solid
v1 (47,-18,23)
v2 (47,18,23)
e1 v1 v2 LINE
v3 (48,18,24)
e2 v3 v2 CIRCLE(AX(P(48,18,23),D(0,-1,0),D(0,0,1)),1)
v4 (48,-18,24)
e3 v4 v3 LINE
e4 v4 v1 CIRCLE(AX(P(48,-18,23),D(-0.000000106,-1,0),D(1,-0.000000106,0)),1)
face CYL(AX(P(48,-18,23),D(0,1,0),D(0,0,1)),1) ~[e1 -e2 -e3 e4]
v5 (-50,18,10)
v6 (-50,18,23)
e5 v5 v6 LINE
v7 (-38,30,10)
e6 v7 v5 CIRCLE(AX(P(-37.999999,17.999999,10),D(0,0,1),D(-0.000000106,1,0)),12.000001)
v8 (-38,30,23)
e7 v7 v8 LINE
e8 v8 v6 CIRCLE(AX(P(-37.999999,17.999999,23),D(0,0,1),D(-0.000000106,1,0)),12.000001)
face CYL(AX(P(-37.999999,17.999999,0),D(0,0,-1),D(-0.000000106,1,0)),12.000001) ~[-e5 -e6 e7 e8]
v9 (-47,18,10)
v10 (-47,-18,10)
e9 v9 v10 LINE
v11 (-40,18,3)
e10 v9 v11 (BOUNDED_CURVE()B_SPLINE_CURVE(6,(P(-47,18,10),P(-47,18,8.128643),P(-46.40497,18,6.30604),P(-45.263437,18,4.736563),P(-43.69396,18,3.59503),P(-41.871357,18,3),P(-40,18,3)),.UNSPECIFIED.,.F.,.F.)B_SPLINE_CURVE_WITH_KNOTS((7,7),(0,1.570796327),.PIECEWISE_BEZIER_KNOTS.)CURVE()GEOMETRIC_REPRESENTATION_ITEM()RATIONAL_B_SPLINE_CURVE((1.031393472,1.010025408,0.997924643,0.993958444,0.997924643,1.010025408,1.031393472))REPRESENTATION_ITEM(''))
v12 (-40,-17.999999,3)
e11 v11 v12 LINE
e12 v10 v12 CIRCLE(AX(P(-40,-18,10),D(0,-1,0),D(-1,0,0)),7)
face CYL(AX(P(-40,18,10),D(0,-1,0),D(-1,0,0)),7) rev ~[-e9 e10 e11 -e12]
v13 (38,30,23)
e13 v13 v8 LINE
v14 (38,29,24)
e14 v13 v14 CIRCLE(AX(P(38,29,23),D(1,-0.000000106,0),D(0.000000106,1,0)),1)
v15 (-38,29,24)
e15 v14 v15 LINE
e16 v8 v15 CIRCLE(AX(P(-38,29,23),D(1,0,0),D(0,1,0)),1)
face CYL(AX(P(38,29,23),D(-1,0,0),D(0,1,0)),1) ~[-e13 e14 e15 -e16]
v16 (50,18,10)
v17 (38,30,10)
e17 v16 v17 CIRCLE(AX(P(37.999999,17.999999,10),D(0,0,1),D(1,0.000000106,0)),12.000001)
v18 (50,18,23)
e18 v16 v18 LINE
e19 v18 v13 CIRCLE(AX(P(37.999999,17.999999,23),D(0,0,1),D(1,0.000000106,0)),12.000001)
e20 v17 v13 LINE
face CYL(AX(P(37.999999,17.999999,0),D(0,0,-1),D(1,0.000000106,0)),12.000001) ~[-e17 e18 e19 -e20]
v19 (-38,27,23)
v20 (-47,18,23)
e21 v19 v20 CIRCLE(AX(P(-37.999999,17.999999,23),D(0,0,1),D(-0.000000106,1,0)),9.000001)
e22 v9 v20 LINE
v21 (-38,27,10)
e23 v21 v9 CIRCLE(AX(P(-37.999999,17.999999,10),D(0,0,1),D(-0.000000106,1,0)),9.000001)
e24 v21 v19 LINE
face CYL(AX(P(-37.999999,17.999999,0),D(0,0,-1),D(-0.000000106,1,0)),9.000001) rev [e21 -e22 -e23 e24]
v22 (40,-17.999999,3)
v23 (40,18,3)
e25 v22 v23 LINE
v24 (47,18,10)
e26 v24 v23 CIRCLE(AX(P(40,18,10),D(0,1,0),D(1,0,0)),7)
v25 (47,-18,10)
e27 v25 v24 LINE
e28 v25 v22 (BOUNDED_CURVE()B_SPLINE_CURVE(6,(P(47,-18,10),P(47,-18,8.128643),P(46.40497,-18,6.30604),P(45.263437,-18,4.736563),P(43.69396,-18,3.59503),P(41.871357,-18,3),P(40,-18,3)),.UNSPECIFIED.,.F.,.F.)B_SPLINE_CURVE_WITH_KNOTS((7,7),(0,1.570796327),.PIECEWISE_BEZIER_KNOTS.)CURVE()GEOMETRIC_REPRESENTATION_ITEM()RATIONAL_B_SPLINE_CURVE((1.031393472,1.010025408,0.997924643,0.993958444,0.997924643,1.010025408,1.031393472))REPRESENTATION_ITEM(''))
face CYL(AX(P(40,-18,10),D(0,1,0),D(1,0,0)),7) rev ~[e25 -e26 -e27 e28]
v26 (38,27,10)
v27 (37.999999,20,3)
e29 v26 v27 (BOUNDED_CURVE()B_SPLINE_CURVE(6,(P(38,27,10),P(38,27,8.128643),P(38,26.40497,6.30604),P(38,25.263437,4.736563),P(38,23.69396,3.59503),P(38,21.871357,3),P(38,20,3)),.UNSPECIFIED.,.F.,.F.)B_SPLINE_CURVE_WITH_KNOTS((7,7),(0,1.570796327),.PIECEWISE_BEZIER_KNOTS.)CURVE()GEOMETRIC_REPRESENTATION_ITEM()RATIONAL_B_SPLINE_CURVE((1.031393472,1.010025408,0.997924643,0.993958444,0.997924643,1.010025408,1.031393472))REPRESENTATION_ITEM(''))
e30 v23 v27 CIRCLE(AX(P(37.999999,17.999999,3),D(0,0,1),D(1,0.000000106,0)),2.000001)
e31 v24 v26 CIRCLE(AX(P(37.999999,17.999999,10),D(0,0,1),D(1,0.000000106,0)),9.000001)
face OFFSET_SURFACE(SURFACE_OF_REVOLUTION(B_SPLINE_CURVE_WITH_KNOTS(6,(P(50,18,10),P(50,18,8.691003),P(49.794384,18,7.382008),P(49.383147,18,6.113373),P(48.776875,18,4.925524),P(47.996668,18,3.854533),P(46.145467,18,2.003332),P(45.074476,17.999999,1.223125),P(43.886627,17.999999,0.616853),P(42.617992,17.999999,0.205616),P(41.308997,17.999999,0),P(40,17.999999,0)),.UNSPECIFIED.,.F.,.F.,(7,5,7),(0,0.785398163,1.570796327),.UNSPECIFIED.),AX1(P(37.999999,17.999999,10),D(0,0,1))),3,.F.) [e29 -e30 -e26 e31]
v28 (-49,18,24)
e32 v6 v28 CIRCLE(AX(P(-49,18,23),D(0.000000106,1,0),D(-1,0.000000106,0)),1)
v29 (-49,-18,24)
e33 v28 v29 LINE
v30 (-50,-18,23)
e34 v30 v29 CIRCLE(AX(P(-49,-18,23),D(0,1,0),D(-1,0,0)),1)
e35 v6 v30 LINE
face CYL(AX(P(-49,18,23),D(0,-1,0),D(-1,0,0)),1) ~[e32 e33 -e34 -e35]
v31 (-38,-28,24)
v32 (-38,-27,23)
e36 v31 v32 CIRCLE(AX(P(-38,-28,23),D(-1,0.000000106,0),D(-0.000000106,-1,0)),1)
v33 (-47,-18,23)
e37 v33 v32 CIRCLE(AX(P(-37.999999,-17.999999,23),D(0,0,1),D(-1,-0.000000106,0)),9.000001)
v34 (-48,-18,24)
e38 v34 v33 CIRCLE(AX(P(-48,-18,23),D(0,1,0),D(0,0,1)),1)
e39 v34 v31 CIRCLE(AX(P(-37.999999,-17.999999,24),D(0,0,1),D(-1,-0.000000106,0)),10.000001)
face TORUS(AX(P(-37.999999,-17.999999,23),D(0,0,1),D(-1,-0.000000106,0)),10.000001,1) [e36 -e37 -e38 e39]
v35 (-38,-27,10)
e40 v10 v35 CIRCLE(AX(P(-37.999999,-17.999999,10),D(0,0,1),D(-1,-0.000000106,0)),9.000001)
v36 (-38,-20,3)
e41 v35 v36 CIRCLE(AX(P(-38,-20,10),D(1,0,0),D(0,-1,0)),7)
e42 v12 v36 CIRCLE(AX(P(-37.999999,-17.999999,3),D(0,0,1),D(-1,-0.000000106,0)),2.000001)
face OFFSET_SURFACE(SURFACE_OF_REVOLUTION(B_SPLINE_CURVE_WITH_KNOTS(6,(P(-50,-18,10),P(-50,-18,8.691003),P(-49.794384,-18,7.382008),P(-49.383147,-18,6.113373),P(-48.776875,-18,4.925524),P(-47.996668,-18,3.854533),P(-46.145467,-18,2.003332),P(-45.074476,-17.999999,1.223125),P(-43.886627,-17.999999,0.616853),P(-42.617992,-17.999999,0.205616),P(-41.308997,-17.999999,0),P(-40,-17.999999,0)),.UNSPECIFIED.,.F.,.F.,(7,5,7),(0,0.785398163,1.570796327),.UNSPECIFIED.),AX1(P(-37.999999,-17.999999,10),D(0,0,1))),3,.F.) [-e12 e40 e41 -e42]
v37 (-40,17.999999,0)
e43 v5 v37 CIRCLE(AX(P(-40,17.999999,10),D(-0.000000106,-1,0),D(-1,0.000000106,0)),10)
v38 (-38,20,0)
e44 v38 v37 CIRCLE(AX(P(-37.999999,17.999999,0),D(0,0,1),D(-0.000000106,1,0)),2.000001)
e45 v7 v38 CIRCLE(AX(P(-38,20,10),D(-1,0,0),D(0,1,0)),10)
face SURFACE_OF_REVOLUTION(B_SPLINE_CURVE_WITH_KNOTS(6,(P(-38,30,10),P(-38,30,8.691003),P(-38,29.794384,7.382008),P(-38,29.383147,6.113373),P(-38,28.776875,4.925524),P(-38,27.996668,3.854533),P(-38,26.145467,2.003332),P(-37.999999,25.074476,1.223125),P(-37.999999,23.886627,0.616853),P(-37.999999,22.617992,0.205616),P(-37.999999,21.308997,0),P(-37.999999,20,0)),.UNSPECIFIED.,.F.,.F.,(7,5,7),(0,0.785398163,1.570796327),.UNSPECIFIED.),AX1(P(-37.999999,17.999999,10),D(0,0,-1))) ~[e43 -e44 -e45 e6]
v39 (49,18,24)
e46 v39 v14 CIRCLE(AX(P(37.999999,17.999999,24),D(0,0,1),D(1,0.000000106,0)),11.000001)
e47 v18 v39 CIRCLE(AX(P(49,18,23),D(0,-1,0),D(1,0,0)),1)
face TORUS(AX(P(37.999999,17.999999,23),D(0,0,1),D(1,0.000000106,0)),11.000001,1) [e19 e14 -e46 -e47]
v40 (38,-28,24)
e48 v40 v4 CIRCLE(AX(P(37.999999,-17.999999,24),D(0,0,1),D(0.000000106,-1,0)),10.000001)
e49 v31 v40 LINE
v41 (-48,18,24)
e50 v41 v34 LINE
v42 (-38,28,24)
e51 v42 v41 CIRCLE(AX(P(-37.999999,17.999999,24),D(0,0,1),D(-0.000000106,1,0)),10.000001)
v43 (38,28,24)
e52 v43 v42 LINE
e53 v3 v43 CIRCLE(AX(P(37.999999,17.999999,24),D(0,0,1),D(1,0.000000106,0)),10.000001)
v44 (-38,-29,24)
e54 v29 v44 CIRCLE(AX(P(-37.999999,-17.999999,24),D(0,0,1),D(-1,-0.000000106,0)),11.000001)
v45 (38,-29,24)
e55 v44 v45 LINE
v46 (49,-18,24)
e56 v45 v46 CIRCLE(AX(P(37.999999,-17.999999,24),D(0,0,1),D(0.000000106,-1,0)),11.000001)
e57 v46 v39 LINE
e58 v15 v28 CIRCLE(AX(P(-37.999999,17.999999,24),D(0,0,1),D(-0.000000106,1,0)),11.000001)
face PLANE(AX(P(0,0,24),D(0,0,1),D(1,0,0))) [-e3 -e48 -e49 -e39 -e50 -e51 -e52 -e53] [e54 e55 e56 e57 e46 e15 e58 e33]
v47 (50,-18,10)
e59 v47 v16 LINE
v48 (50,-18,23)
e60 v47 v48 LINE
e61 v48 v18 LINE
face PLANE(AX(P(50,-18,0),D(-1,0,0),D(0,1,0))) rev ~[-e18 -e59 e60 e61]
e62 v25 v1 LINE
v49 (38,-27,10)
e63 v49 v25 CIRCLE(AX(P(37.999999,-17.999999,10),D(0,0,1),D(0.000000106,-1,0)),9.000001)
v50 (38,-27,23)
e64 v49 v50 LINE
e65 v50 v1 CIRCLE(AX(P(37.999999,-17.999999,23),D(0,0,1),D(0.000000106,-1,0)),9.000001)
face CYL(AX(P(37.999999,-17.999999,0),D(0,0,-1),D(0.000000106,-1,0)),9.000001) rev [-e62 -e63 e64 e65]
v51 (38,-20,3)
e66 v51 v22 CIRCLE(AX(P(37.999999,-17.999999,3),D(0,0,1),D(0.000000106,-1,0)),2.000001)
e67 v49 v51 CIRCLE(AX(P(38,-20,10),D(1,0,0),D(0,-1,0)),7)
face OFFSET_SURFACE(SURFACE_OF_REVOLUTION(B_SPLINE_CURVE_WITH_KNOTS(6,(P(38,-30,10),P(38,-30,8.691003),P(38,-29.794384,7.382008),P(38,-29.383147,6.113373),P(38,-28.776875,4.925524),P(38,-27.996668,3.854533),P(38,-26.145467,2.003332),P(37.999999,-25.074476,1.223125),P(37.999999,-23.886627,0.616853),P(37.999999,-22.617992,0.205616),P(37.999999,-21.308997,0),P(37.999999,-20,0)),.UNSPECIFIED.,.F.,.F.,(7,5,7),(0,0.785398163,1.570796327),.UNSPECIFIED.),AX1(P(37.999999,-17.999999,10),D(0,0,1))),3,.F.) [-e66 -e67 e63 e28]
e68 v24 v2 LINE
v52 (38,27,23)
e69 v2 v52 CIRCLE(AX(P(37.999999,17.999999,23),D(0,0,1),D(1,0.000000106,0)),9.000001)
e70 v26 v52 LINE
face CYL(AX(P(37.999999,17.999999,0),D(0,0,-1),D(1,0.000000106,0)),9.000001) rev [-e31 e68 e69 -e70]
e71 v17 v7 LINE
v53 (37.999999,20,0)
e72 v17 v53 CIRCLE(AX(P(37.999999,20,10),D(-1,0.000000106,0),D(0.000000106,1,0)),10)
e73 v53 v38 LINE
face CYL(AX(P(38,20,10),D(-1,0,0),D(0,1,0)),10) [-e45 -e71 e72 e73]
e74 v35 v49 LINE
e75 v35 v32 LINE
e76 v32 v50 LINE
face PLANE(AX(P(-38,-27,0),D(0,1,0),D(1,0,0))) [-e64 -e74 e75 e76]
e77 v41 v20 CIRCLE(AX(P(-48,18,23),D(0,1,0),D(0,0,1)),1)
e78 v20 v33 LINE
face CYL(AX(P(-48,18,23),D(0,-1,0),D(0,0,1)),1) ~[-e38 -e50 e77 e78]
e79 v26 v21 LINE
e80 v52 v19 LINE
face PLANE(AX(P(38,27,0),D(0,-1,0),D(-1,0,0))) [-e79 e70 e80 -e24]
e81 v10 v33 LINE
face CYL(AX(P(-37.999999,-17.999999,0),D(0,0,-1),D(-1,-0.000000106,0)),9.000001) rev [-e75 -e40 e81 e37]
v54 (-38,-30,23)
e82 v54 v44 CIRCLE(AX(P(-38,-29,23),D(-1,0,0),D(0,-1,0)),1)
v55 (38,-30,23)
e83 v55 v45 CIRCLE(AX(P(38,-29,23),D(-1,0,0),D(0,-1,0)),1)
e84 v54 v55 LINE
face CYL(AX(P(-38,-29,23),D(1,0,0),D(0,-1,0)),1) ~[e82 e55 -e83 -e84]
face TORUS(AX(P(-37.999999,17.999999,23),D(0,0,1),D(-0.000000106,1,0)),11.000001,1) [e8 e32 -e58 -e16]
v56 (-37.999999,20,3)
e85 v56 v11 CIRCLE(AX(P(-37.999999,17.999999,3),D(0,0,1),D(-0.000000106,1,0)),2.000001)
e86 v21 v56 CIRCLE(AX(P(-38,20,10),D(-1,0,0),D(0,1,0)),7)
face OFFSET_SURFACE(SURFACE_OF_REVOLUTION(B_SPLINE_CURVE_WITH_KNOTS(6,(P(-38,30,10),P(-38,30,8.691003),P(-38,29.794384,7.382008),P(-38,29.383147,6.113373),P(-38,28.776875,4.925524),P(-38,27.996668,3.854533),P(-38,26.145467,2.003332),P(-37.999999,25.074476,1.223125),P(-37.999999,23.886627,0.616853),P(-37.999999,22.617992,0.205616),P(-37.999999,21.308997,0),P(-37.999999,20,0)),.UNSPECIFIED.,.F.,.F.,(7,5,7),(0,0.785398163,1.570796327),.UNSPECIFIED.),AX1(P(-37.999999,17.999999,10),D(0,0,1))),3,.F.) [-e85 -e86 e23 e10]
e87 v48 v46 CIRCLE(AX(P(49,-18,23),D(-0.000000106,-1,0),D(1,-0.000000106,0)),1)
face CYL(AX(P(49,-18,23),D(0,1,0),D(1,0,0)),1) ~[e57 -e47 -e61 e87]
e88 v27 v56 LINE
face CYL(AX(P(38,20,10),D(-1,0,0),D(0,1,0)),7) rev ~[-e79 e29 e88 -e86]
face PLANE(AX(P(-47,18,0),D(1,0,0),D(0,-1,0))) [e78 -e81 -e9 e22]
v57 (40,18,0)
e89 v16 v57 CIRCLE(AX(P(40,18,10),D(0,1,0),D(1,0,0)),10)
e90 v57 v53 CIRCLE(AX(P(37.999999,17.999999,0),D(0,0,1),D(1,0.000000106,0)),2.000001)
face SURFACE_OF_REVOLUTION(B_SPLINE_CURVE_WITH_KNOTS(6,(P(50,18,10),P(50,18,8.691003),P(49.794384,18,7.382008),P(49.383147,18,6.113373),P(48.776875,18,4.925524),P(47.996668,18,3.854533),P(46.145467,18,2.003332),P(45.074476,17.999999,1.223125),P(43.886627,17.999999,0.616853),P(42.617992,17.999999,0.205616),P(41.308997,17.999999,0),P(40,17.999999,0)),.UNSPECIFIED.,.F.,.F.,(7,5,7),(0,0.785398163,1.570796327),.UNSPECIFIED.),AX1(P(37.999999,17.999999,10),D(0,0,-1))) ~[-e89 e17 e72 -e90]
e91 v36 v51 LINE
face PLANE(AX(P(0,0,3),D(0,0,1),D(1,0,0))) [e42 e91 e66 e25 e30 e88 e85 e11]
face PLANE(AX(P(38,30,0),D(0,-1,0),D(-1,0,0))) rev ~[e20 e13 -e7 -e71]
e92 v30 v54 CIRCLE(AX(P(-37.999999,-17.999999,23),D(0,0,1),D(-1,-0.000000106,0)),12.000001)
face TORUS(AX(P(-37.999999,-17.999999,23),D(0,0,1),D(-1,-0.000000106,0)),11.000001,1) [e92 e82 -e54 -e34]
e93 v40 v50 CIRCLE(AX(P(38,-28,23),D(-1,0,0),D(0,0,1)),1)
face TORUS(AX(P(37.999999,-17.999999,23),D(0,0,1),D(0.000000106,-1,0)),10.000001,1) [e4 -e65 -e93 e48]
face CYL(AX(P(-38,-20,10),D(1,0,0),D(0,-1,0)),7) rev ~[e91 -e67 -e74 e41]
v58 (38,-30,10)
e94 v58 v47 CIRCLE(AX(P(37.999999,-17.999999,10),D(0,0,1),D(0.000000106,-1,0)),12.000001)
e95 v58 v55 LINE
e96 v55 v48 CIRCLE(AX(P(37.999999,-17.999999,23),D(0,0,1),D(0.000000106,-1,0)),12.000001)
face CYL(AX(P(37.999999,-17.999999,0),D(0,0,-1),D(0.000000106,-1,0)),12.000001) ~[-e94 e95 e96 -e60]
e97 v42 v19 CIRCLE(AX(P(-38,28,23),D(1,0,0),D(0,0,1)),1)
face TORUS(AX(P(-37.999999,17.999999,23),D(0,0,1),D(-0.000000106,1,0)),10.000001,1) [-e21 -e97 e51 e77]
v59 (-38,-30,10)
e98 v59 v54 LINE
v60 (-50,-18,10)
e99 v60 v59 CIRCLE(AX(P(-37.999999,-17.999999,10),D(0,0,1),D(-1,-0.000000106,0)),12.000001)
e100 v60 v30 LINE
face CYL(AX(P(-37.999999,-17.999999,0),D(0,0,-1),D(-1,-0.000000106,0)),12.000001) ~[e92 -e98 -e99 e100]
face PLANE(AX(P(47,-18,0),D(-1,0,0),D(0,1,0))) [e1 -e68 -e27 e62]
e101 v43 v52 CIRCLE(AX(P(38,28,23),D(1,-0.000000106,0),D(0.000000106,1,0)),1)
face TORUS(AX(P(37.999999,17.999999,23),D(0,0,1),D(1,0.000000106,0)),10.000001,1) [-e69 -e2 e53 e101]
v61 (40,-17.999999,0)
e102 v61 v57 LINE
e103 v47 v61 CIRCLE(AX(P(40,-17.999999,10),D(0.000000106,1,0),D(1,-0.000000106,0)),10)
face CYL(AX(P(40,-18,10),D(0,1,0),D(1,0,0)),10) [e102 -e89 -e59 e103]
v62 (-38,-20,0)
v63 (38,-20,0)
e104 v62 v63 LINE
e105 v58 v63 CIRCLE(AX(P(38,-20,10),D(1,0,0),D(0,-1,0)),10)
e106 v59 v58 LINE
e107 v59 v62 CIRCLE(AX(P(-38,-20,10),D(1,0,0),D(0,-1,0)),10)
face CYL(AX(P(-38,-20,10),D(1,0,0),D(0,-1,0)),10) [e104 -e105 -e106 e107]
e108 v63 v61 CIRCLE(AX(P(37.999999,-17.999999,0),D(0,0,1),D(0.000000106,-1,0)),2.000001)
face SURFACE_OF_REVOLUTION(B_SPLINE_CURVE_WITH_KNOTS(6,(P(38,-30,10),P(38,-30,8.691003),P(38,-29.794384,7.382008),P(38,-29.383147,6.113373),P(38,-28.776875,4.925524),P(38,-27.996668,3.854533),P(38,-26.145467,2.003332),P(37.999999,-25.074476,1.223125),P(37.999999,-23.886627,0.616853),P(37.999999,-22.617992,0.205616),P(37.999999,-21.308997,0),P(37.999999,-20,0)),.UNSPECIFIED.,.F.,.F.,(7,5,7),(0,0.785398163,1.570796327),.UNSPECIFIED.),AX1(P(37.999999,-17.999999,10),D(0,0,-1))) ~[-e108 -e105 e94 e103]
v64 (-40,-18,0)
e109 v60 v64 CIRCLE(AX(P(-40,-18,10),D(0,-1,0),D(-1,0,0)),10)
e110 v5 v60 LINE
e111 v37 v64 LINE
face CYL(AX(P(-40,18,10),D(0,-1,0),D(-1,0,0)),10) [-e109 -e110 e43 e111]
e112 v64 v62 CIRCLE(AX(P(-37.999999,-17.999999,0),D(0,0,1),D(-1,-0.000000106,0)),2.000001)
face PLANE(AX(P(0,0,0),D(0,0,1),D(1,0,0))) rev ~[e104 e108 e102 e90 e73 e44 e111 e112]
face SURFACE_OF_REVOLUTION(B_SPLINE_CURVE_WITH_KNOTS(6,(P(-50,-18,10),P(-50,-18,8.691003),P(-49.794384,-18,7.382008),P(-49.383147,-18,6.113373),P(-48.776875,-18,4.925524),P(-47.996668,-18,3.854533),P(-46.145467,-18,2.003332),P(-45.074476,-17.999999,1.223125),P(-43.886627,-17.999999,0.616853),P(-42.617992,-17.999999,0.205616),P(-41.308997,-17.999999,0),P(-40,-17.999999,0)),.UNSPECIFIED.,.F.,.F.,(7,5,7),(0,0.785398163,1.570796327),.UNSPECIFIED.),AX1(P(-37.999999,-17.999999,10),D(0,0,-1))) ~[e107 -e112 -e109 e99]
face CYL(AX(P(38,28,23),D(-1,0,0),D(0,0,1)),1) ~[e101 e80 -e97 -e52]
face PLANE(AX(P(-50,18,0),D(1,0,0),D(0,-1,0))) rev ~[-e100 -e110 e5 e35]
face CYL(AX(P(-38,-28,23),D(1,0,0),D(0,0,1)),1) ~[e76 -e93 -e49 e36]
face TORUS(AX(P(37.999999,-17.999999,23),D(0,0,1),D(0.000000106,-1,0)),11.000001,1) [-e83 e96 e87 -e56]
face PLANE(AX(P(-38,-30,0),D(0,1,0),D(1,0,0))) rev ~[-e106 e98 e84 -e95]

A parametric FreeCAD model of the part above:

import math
import FreeCAD as App
import Part
import Sketcher
from FreeCAD import Vector


def edges_at(feature, points):
    """Names of the edges that pass closest to the given points."""
    edges = feature.Shape.Edges
    near = lambda p: min(range(len(edges)), key=lambda i: edges[i].distToShape(Part.Vertex(*p))[0])
    return sorted({f"Edge{near(p) + 1}" for p in points})


def faces_at(feature, points):
    """Names of the faces that lie closest to the given points."""
    faces = feature.Shape.Faces
    near = lambda p: min(range(len(faces)), key=lambda i: faces[i].distToShape(Part.Vertex(*p))[0])
    return sorted({f"Face{near(p) + 1}" for p in points})

doc = App.newDocument("Part")
body = doc.addObject("PartDesign::Body", "Body")

sketch1 = body.newObject("Sketcher::SketchObject", "Sketch")
sketch1.AttachmentSupport = (doc.getObject("XY_Plane"), [""])
sketch1.MapMode = "FlatFace"
sketch1.addGeometry(Part.LineSegment(Vector(-38, -30, 0), Vector(38, -30, 0)), False)
sketch1.addGeometry(Part.ArcOfCircle(Part.Circle(Vector(38, -18, 0), Vector(0, 0, 1), 12), math.radians(-90), math.radians(0)), False)
sketch1.addGeometry(Part.LineSegment(Vector(50, -18, 0), Vector(50, 18, 0)), False)
sketch1.addGeometry(Part.ArcOfCircle(Part.Circle(Vector(38, 18, 0), Vector(0, 0, 1), 12), math.radians(0), math.radians(90)), False)
sketch1.addGeometry(Part.LineSegment(Vector(38, 30, 0), Vector(-38, 30, 0)), False)
sketch1.addGeometry(Part.ArcOfCircle(Part.Circle(Vector(-38, 18, 0), Vector(0, 0, 1), 12), math.radians(90), math.radians(180)), False)
sketch1.addGeometry(Part.LineSegment(Vector(-50, 18, 0), Vector(-50, -18, 0)), False)
sketch1.addGeometry(Part.ArcOfCircle(Part.Circle(Vector(-38, -18, 0), Vector(0, 0, 1), 12), math.radians(-180), math.radians(-90)), False)
sketch1.addConstraint(Sketcher.Constraint("Tangent", 0, 2, 1, 1))
sketch1.addConstraint(Sketcher.Constraint("Tangent", 1, 2, 2, 1))
sketch1.addConstraint(Sketcher.Constraint("Tangent", 2, 2, 3, 1))
sketch1.addConstraint(Sketcher.Constraint("Tangent", 3, 2, 4, 1))
sketch1.addConstraint(Sketcher.Constraint("Tangent", 4, 2, 5, 1))
sketch1.addConstraint(Sketcher.Constraint("Tangent", 5, 2, 6, 1))
sketch1.addConstraint(Sketcher.Constraint("Tangent", 6, 2, 7, 1))
sketch1.addConstraint(Sketcher.Constraint("Tangent", 7, 2, 0, 1))
sketch1.addConstraint(Sketcher.Constraint("Horizontal", 0))
sketch1.addConstraint(Sketcher.Constraint("Vertical", 2))
sketch1.addConstraint(Sketcher.Constraint("Horizontal", 4))
sketch1.addConstraint(Sketcher.Constraint("Vertical", 6))
sketch1.addConstraint(Sketcher.Constraint("Equal", 1, 3))
sketch1.addConstraint(Sketcher.Constraint("Equal", 3, 5))
sketch1.addConstraint(Sketcher.Constraint("Equal", 5, 7))
sketch1.addConstraint(Sketcher.Constraint("Symmetric", 1, 3, 5, 3, -1, 1))
sketch1.addConstraint(Sketcher.Constraint("Radius", 1, 12.000001))
sketch1.addConstraint(Sketcher.Constraint("DistanceX", 0, 1, 0, 2, 76.0))
sketch1.addConstraint(Sketcher.Constraint("DistanceY", 2, 1, 2, 2, 36.0))
pad1 = body.newObject("PartDesign::Pad", "Pad")
pad1.Profile = sketch1
pad1.Length = 24
doc.recompute()

fillet = body.newObject("PartDesign::Fillet", "Fillet")
fillet.Base = (pad1, edges_at(pad1, [(0, -30, 0)]))
fillet.Radius = 10
doc.recompute()

thickness = body.newObject("PartDesign::Thickness", "Thickness")
thickness.Base = (fillet, faces_at(fillet, [(0, 0, 24)]))
thickness.Value = 3
thickness.Reversed = True
thickness.Join = "Arc"
doc.recompute()

fillet2 = body.newObject("PartDesign::Fillet", "Fillet001")
fillet2.Base = (thickness, edges_at(thickness, [(0, -30, 24), (-47, 0, 24)]))
fillet2.Radius = 1

doc.recompute()
